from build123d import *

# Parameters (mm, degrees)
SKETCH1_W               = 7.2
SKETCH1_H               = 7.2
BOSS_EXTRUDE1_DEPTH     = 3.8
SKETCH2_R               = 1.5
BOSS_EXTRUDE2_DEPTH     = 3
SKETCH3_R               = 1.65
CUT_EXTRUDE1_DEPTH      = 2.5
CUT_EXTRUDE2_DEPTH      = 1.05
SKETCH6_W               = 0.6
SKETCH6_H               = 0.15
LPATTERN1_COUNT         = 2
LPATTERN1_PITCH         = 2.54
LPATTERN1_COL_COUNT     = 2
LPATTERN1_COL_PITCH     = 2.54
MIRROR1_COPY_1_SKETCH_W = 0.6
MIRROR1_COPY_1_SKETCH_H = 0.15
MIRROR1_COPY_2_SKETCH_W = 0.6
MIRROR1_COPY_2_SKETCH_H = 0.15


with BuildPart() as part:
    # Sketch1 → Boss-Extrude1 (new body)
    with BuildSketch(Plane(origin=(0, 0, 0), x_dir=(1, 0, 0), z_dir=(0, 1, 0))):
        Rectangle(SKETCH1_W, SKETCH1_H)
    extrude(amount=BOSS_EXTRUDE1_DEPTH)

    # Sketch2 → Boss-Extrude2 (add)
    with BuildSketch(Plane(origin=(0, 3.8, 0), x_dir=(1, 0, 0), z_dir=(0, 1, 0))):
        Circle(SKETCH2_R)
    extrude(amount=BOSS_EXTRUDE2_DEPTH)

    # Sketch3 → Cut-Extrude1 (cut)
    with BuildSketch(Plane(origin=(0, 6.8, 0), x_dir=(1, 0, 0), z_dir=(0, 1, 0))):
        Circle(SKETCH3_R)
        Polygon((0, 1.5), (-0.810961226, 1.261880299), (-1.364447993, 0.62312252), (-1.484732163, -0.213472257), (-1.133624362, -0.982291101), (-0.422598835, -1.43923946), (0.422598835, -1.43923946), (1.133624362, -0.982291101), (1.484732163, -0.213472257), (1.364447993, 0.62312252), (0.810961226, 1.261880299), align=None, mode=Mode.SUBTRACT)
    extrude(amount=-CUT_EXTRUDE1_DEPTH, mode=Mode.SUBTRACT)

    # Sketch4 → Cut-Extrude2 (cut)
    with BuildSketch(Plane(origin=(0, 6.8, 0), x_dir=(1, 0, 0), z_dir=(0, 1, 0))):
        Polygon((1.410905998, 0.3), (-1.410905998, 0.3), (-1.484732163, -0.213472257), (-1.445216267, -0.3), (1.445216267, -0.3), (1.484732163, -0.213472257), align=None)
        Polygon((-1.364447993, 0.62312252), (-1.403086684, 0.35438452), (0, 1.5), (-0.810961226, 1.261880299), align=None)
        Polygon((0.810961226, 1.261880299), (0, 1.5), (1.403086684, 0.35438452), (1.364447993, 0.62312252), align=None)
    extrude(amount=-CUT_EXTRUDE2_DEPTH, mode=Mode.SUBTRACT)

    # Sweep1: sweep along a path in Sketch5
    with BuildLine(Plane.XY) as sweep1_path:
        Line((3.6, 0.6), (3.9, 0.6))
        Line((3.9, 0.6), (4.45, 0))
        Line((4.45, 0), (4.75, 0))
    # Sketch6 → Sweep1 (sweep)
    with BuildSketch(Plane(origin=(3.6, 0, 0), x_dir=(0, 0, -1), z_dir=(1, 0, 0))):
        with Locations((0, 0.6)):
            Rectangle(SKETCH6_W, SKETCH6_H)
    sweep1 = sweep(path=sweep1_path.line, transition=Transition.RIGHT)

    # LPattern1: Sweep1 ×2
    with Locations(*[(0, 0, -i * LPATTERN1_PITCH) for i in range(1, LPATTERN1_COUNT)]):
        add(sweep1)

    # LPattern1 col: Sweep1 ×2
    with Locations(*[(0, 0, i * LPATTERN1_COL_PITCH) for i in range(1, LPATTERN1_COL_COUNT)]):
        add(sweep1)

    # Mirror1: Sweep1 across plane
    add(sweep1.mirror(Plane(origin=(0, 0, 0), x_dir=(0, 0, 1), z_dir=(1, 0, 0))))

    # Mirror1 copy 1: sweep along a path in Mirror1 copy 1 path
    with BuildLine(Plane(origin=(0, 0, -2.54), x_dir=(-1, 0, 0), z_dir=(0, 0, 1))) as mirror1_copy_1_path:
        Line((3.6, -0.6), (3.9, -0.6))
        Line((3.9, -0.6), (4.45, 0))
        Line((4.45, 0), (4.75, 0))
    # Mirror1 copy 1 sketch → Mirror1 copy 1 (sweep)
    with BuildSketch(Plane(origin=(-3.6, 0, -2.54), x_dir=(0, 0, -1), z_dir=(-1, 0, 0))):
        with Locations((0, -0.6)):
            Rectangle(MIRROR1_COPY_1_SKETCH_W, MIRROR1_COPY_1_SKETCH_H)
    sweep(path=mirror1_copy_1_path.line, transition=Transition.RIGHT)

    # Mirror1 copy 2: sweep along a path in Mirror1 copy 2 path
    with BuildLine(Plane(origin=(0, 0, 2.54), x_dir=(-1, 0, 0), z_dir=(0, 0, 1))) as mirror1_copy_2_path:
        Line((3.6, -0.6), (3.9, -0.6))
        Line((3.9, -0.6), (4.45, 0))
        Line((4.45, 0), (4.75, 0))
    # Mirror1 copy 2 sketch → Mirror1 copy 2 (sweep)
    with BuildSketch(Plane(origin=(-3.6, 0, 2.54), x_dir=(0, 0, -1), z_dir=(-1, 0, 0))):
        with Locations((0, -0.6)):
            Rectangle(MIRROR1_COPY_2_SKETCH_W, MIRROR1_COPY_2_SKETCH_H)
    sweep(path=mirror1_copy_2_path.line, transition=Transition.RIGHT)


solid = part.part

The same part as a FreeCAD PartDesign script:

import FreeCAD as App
import Part
import Sketcher
from FreeCAD import Vector
Q = App.Units.Quantity

doc = App.newDocument("Part")
body = doc.addObject("PartDesign::Body", "Body")

sketch1 = doc.addObject("Sketcher::SketchObject", "Sketch")
body.addObject(sketch1)
sketch1.AttachmentSupport = (doc.XZ_Plane, [""])
sketch1.MapMode = "FlatFace"
sketch1.addGeometry([
    Part.LineSegment(Vector(-3.6, -3.6, 0), Vector(-3.6, 3.6, 0)),
    Part.LineSegment(Vector(-3.6, 3.6, 0), Vector(3.6, 3.6, 0)),
    Part.LineSegment(Vector(3.6, 3.6, 0), Vector(3.6, -3.6, 0)),
    Part.LineSegment(Vector(3.6, -3.6, 0), Vector(-3.6, -3.6, 0)),
], False)
sketch1.addConstraint([
    Sketcher.Constraint("Coincident", 0, 2, 1, 1),
    Sketcher.Constraint("Coincident", 1, 2, 2, 1),
    Sketcher.Constraint("Coincident", 2, 2, 3, 1),
    Sketcher.Constraint("Coincident", 3, 2, 0, 1),
    Sketcher.Constraint("Vertical", 0),
    Sketcher.Constraint("Horizontal", 1),
    Sketcher.Constraint("Vertical", 2),
    Sketcher.Constraint("Horizontal", 3),
    Sketcher.Constraint("Symmetric", 0, 2, 2, 2, -1, 1),
    Sketcher.Constraint("Equal", 3, 0),
    Sketcher.Constraint("DistanceX", 1, 1, 1, 2, Q("7.2 mm")),
])
pad1 = doc.addObject("PartDesign::Pad", "Pad")
body.addObject(pad1)
pad1.Profile = sketch1
pad1.Length = 3.8
pad1.Reversed = True

sketch2 = doc.addObject("Sketcher::SketchObject", "Sketch001")
body.addObject(sketch2)
sketch2.AttachmentSupport = (doc.XZ_Plane, [""])
sketch2.MapMode = "FlatFace"
sketch2.AttachmentOffset = App.Placement(Vector(0, 0, -3.8), App.Rotation())
sketch2.addGeometry(Part.Circle(Vector(0, 0, 0), Vector(0, 0, 1), 1.5), False)
sketch2.addConstraint([
    Sketcher.Constraint("Coincident", 0, 3, -1, 1),
    Sketcher.Constraint("Diameter", 0, Q("3 mm")),
])
pad2 = doc.addObject("PartDesign::Pad", "Pad001")
body.addObject(pad2)
pad2.Profile = sketch2
pad2.Length = 3
pad2.Reversed = True

sketch3 = doc.addObject("Sketcher::SketchObject", "Sketch002")
body.addObject(sketch3)
sketch3.AttachmentSupport = (doc.XZ_Plane, [""])
sketch3.MapMode = "FlatFace"
sketch3.AttachmentOffset = App.Placement(Vector(0, 0, -6.8), App.Rotation())
sketch3.addGeometry([
    Part.Circle(Vector(0, 0, 0), Vector(0, 0, 1), 1.65),
    Part.LineSegment(Vector(-0.810961, -1.26188, 0), Vector(0, -1.5, 0)),
    Part.LineSegment(Vector(0, -1.5, 0), Vector(0.810961, -1.26188, 0)),
    Part.LineSegment(Vector(0.810961, -1.26188, 0), Vector(1.364448, -0.623123, 0)),
    Part.LineSegment(Vector(1.364448, -0.623123, 0), Vector(1.484732, 0.213472, 0)),
    Part.LineSegment(Vector(1.484732, 0.213472, 0), Vector(1.133624, 0.982291, 0)),
    Part.LineSegment(Vector(1.133624, 0.982291, 0), Vector(0.422599, 1.439239, 0)),
    Part.LineSegment(Vector(0.422599, 1.439239, 0), Vector(-0.422599, 1.439239, 0)),
    Part.LineSegment(Vector(-0.422599, 1.439239, 0), Vector(-1.133624, 0.982291, 0)),
    Part.LineSegment(Vector(-1.133624, 0.982291, 0), Vector(-1.484732, 0.213472, 0)),
    Part.LineSegment(Vector(-1.484732, 0.213472, 0), Vector(-1.364448, -0.623123, 0)),
    Part.LineSegment(Vector(-1.364448, -0.623123, 0), Vector(-0.810961, -1.26188, 0)),
], False)
sketch3.addConstraint([
    Sketcher.Constraint("Coincident", 1, 2, 2, 1),
    Sketcher.Constraint("Coincident", 2, 2, 3, 1),
    Sketcher.Constraint("Coincident", 3, 2, 4, 1),
    Sketcher.Constraint("Coincident", 4, 2, 5, 1),
    Sketcher.Constraint("Coincident", 5, 2, 6, 1),
    Sketcher.Constraint("Coincident", 6, 2, 7, 1),
    Sketcher.Constraint("Coincident", 7, 2, 8, 1),
    Sketcher.Constraint("Coincident", 8, 2, 9, 1),
    Sketcher.Constraint("Coincident", 9, 2, 10, 1),
    Sketcher.Constraint("Coincident", 10, 2, 11, 1),
    Sketcher.Constraint("Coincident", 11, 2, 1, 1),
    Sketcher.Constraint("Horizontal", 7),
    Sketcher.Constraint("Coincident", 0, 3, -1, 1),
    Sketcher.Constraint("Symmetric", 5, 2, 8, 2, -2),
    Sketcher.Constraint("Symmetric", 4, 2, 9, 2, -2),
    Sketcher.Constraint("Symmetric", 3, 2, 10, 2, -2),
    Sketcher.Constraint("Symmetric", 2, 2, 11, 2, -2),
    Sketcher.Constraint("PointOnObject", 1, 2, -2),
    Sketcher.Constraint("Equal", 2, 3),
    Sketcher.Constraint("Equal", 3, 4),
    Sketcher.Constraint("Equal", 4, 5),
    Sketcher.Constraint("Equal", 5, 6),
    Sketcher.Constraint("Equal", 6, 8),
    Sketcher.Constraint("Diameter", 0, Q("3.3 mm")),
    Sketcher.Constraint("DistanceY", 1, 2, -1, 1, Q("1.5 mm")),
    Sketcher.Constraint("DistanceX", -1, 1, 6, 2, Q("0.422599 mm")),
    Sketcher.Constraint("DistanceX", -1, 1, 2, 2, Q("0.810961 mm")),
    Sketcher.Constraint("DistanceY", 2, 2, -1, 1, Q("1.26188 mm")),
    Sketcher.Constraint("DistanceY", -1, 1, 5, 2, Q("0.982291 mm")),
    Sketcher.Constraint("DistanceY", -1, 1, 6, 2, Q("1.439239 mm")),
    Sketcher.Constraint("DistanceX", 2, 2, 4, 2, Q("0.673771 mm")),
])
pocket1 = doc.addObject("PartDesign::Pocket", "Pocket")
body.addObject(pocket1)
pocket1.Profile = sketch3
pocket1.Length = 2.5
pocket1.Reversed = True

sketch4 = doc.addObject("Sketcher::SketchObject", "Sketch003")
body.addObject(sketch4)
sketch4.AttachmentSupport = (doc.XZ_Plane, [""])
sketch4.MapMode = "FlatFace"
sketch4.AttachmentOffset = App.Placement(Vector(0, 0, -6.8), App.Rotation())
sketch4.addGeometry([
    Part.LineSegment(Vector(1.410906, -0.3, 0), Vector(-1.410906, -0.3, 0)),
    Part.LineSegment(Vector(-1.410906, -0.3, 0), Vector(-1.484732, 0.213472, 0)),
    Part.LineSegment(Vector(-1.484732, 0.213472, 0), Vector(-1.445216, 0.3, 0)),
    Part.LineSegment(Vector(-1.445216, 0.3, 0), Vector(1.445216, 0.3, 0)),
    Part.LineSegment(Vector(1.445216, 0.3, 0), Vector(1.484732, 0.213472, 0)),
    Part.LineSegment(Vector(1.484732, 0.213472, 0), Vector(1.410906, -0.3, 0)),
    Part.LineSegment(Vector(-1.364448, -0.623123, 0), Vector(-1.403087, -0.354385, 0)),
    Part.LineSegment(Vector(-1.403087, -0.354385, 0), Vector(0, -1.5, 0)),
    Part.LineSegment(Vector(0, -1.5, 0), Vector(-0.810961, -1.26188, 0)),
    Part.LineSegment(Vector(-0.810961, -1.26188, 0), Vector(-1.364448, -0.623123, 0)),
    Part.LineSegment(Vector(0.810961, -1.26188, 0), Vector(0, -1.5, 0)),
    Part.LineSegment(Vector(0, -1.5, 0), Vector(1.403087, -0.354385, 0)),
    Part.LineSegment(Vector(1.403087, -0.354385, 0), Vector(1.364448, -0.623123, 0)),
    Part.LineSegment(Vector(1.364448, -0.623123, 0), Vector(0.810961, -1.26188, 0)),
], False)
sketch4.addConstraint([
    Sketcher.Constraint("Coincident", 0, 2, 1, 1),
    Sketcher.Constraint("Coincident", 1, 2, 2, 1),
    Sketcher.Constraint("Coincident", 2, 2, 3, 1),
    Sketcher.Constraint("Coincident", 3, 2, 4, 1),
    Sketcher.Constraint("Coincident", 4, 2, 5, 1),
    Sketcher.Constraint("Coincident", 5, 2, 0, 1),
    Sketcher.Constraint("Coincident", 6, 2, 7, 1),
    Sketcher.Constraint("Coincident", 7, 2, 8, 1),
    Sketcher.Constraint("Coincident", 8, 2, 9, 1),
    Sketcher.Constraint("Coincident", 9, 2, 6, 1),
    Sketcher.Constraint("Coincident", 10, 2, 11, 1),
    Sketcher.Constraint("Coincident", 11, 2, 12, 1),
    Sketcher.Constraint("Coincident", 12, 2, 13, 1),
    Sketcher.Constraint("Coincident", 13, 2, 10, 1),
    Sketcher.Constraint("Horizontal", 0),
    Sketcher.Constraint("Horizontal", 3),
    Sketcher.Constraint("Coincident", 10, 2, 7, 2),
    Sketcher.Constraint("Symmetric", 1, 2, 4, 2, -2),
    Sketcher.Constraint("Symmetric", 6, 2, 11, 2, -2),
    Sketcher.Constraint("Symmetric", 9, 2, 12, 2, -2),
    Sketcher.Constraint("Symmetric", 8, 2, 13, 2, -2),
    Sketcher.Constraint("PointOnObject", 7, 2, -2),
    Sketcher.Constraint("Parallel", 1, 6),
    Sketcher.Constraint("Parallel", 5, 12),
    Sketcher.Constraint("Equal", 2, 4),
    Sketcher.Constraint("Equal", 8, 9),
    Sketcher.Constraint("DistanceY", 0, 2, -1, 1, Q("0.3 mm")),
    Sketcher.Constraint("DistanceY", -1, 1, 2, 2, Q("0.3 mm")),
    Sketcher.Constraint("DistanceY", 7, 2, -1, 1, Q("1.5 mm")),
    Sketcher.Constraint("Distance", 6, Q("0.271501 mm")),
    Sketcher.Constraint("DistanceX", 0, 2, 0, 1, Q("2.821812 mm")),
    Sketcher.Constraint("DistanceX", 3, 1, 3, 2, Q("2.890433 mm")),
    Sketcher.Constraint("DistanceX", 8, 2, -1, 1, Q("0.810961 mm")),
    Sketcher.Constraint("DistanceY", 8, 2, -1, 1, Q("1.26188 mm")),
    Sketcher.Constraint("DistanceX", 1, 2, 3, 2, Q("2.929948 mm")),
    Sketcher.Constraint("DistanceX", 0, 2, 6, 2, Q("0.007819 mm")),
    Sketcher.Constraint("DistanceX", 6, 2, 9, 2, Q("0.038639 mm")),
])
pocket2 = doc.addObject("PartDesign::Pocket", "Pocket001")
body.addObject(pocket2)
pocket2.Profile = sketch4
pocket2.Length = 1.05
pocket2.Reversed = True

sketch5 = doc.addObject("Sketcher::SketchObject", "Sketch004")
body.addObject(sketch5)
sketch5.AttachmentSupport = (doc.YZ_Plane, [""])
sketch5.MapMode = "FlatFace"
sketch5.AttachmentOffset = App.Placement(Vector(0, 0, 3.6), App.Rotation())
sketch5.addGeometry([
    Part.LineSegment(Vector(0.675, 0.3, 0), Vector(0.525, 0.3, 0)),
    Part.LineSegment(Vector(0.525, 0.3, 0), Vector(0.525, -0.3, 0)),
    Part.LineSegment(Vector(0.525, -0.3, 0), Vector(0.675, -0.3, 0)),
    Part.LineSegment(Vector(0.675, -0.3, 0), Vector(0.675, 0.3, 0)),
], False)
sketch5.addConstraint([
    Sketcher.Constraint("Coincident", 0, 2, 1, 1),
    Sketcher.Constraint("Coincident", 1, 2, 2, 1),
    Sketcher.Constraint("Coincident", 2, 2, 3, 1),
    Sketcher.Constraint("Coincident", 3, 2, 0, 1),
    Sketcher.Constraint("Horizontal", 0),
    Sketcher.Constraint("Vertical", 1),
    Sketcher.Constraint("Horizontal", 2),
    Sketcher.Constraint("Vertical", 3),
    Sketcher.Constraint("DistanceY", 1, 2, 1, 1, Q("0.6 mm")),
    Sketcher.Constraint("DistanceX", 0, 2, 0, 1, Q("0.15 mm")),
    Sketcher.Constraint("DistanceY", -1, 1, 0, 2, Q("0.3 mm")),
    Sketcher.Constraint("DistanceX", -1, 1, 0, 2, Q("0.525 mm")),
])

sketch6 = doc.addObject("Sketcher::SketchObject", "Sketch005")
body.addObject(sketch6)
sketch6.AttachmentSupport = (doc.XY_Plane, [""])
sketch6.MapMode = "FlatFace"
sketch6.addGeometry([
    Part.LineSegment(Vector(3.6, 0.6, 0), Vector(3.9, 0.6, 0)),
    Part.LineSegment(Vector(3.9, 0.6, 0), Vector(4.45, 0, 0)),
    Part.LineSegment(Vector(4.45, 0, 0), Vector(4.75, 0, 0)),
], False)
sketch6.addConstraint([
    Sketcher.Constraint("Coincident", 0, 2, 1, 1),
    Sketcher.Constraint("Coincident", 1, 2, 2, 1),
    Sketcher.Constraint("Horizontal", 0),
    Sketcher.Constraint("Horizontal", 2),
    Sketcher.Constraint("PointOnObject", 1, 2, -1),
    Sketcher.Constraint("Equal", 0, 2),
    Sketcher.Constraint("DistanceX", 0, 1, 0, 2, Q("0.3 mm")),
    Sketcher.Constraint("DistanceX", -1, 1, 0, 1, Q("3.6 mm")),
    Sketcher.Constraint("DistanceY", -1, 1, 0, 1, Q("0.6 mm")),
    Sketcher.Constraint("DistanceX", -1, 1, 1, 2, Q("4.45 mm")),
])
doc.recompute()

additivepipe = doc.addObject("PartDesign::AdditivePipe", "AdditivePipe")
body.addObject(additivepipe)
additivepipe.Profile = sketch5
additivepipe.Spine = (sketch6, ["Edge1", "Edge2", "Edge3"])
additivepipe.Transition = "Right corner"
doc.recompute()

linearpattern = doc.addObject("PartDesign::LinearPattern", "LinearPattern")
body.addObject(linearpattern)
linearpattern.Originals = [additivepipe]
linearpattern.Direction = (doc.Z_Axis, [""])
linearpattern.Mode = "offset"
linearpattern.Offset = 2.54
linearpattern.Occurrences = 2
linearpattern.Reversed = True
body.Tip = linearpattern
doc.recompute()

linearpattern2 = doc.addObject("PartDesign::LinearPattern", "LinearPattern001")
body.addObject(linearpattern2)
linearpattern2.Originals = [additivepipe]
linearpattern2.Direction = (doc.Z_Axis, [""])
linearpattern2.Mode = "offset"
linearpattern2.Offset = 2.54
linearpattern2.Occurrences = 2
body.Tip = linearpattern2
doc.recompute()

mirrored = doc.addObject("PartDesign::Mirrored", "Mirrored")
body.addObject(mirrored)
mirrored.Originals = [additivepipe]
mirrored.MirrorPlane = (doc.YZ_Plane, [""])
body.Tip = mirrored

sketch7 = doc.addObject("Sketcher::SketchObject", "Sketch006")
body.addObject(sketch7)
sketch7.AttachmentSupport = (doc.YZ_Plane, [""])
sketch7.MapMode = "FlatFace"
sketch7.AttachmentOffset = App.Placement(Vector(0, 0, -3.6), App.Rotation())
sketch7.addGeometry([
    Part.LineSegment(Vector(0.525, -2.24, 0), Vector(0.675, -2.24, 0)),
    Part.LineSegment(Vector(0.675, -2.24, 0), Vector(0.675, -2.84, 0)),
    Part.LineSegment(Vector(0.675, -2.84, 0), Vector(0.525, -2.84, 0)),
    Part.LineSegment(Vector(0.525, -2.84, 0), Vector(0.525, -2.24, 0)),
], False)
sketch7.addConstraint([
    Sketcher.Constraint("Coincident", 0, 2, 1, 1),
    Sketcher.Constraint("Coincident", 1, 2, 2, 1),
    Sketcher.Constraint("Coincident", 2, 2, 3, 1),
    Sketcher.Constraint("Coincident", 3, 2, 0, 1),
    Sketcher.Constraint("Horizontal", 0),
    Sketcher.Constraint("Vertical", 1),
    Sketcher.Constraint("Horizontal", 2),
    Sketcher.Constraint("Vertical", 3),
    Sketcher.Constraint("DistanceY", 1, 2, 1, 1, Q("0.6 mm")),
    Sketcher.Constraint("DistanceX", 0, 1, 0, 2, Q("0.15 mm")),
    Sketcher.Constraint("DistanceY", 0, 2, -1, 1, Q("2.24 mm")),
    Sketcher.Constraint("DistanceX", -1, 1, 0, 2, Q("0.675 mm")),
])

sketch8 = doc.addObject("Sketcher::SketchObject", "Sketch007")
body.addObject(sketch8)
sketch8.AttachmentSupport = (doc.XY_Plane, [""])
sketch8.MapMode = "FlatFace"
sketch8.AttachmentOffset = App.Placement(Vector(0, 0, -2.54), App.Rotation())
sketch8.addGeometry([
    Part.LineSegment(Vector(-3.6, 0.6, 0), Vector(-3.9, 0.6, 0)),
    Part.LineSegment(Vector(-3.9, 0.6, 0), Vector(-4.45, 0, 0)),
    Part.LineSegment(Vector(-4.45, 0, 0), Vector(-4.75, 0, 0)),
], False)
sketch8.addConstraint([
    Sketcher.Constraint("Coincident", 0, 2, 1, 1),
    Sketcher.Constraint("Coincident", 1, 2, 2, 1),
    Sketcher.Constraint("Horizontal", 0),
    Sketcher.Constraint("Horizontal", 2),
    Sketcher.Constraint("PointOnObject", 1, 2, -1),
    Sketcher.Constraint("Equal", 0, 2),
    Sketcher.Constraint("DistanceX", 0, 2, 0, 1, Q("0.3 mm")),
    Sketcher.Constraint("DistanceX", 0, 1, -1, 1, Q("3.6 mm")),
    Sketcher.Constraint("DistanceY", -1, 1, 0, 1, Q("0.6 mm")),
    Sketcher.Constraint("DistanceX", 1, 2, -1, 1, Q("4.45 mm")),
])
doc.recompute()

additivepipe2 = doc.addObject("PartDesign::AdditivePipe", "AdditivePipe001")
body.addObject(additivepipe2)
additivepipe2.Profile = sketch7
additivepipe2.Spine = (sketch8, ["Edge1", "Edge2", "Edge3"])
additivepipe2.Transition = "Right corner"

sketch9 = doc.addObject("Sketcher::SketchObject", "Sketch008")
body.addObject(sketch9)
sketch9.AttachmentSupport = (doc.YZ_Plane, [""])
sketch9.MapMode = "FlatFace"
sketch9.AttachmentOffset = App.Placement(Vector(0, 0, -3.6), App.Rotation())
sketch9.addGeometry([
    Part.LineSegment(Vector(0.525, 2.84, 0), Vector(0.675, 2.84, 0)),
    Part.LineSegment(Vector(0.675, 2.84, 0), Vector(0.675, 2.24, 0)),
    Part.LineSegment(Vector(0.675, 2.24, 0), Vector(0.525, 2.24, 0)),
    Part.LineSegment(Vector(0.525, 2.24, 0), Vector(0.525, 2.84, 0)),
], False)
sketch9.addConstraint([
    Sketcher.Constraint("Coincident", 0, 2, 1, 1),
    Sketcher.Constraint("Coincident", 1, 2, 2, 1),
    Sketcher.Constraint("Coincident", 2, 2, 3, 1),
    Sketcher.Constraint("Coincident", 3, 2, 0, 1),
    Sketcher.Constraint("Horizontal", 0),
    Sketcher.Constraint("Vertical", 1),
    Sketcher.Constraint("Horizontal", 2),
    Sketcher.Constraint("Vertical", 3),
    Sketcher.Constraint("DistanceY", 1, 2, 1, 1, Q("0.6 mm")),
    Sketcher.Constraint("DistanceX", 0, 1, 0, 2, Q("0.15 mm")),
    Sketcher.Constraint("DistanceY", -1, 1, 0, 2, Q("2.84 mm")),
    Sketcher.Constraint("DistanceX", -1, 1, 0, 2, Q("0.675 mm")),
])

sketch10 = doc.addObject("Sketcher::SketchObject", "Sketch009")
body.addObject(sketch10)
sketch10.AttachmentSupport = (doc.XY_Plane, [""])
sketch10.MapMode = "FlatFace"
sketch10.AttachmentOffset = App.Placement(Vector(0, 0, 2.54), App.Rotation())
sketch10.addGeometry([
    Part.LineSegment(Vector(-3.6, 0.6, 0), Vector(-3.9, 0.6, 0)),
    Part.LineSegment(Vector(-3.9, 0.6, 0), Vector(-4.45, 0, 0)),
    Part.LineSegment(Vector(-4.45, 0, 0), Vector(-4.75, 0, 0)),
], False)
sketch10.addConstraint([
    Sketcher.Constraint("Coincident", 0, 2, 1, 1),
    Sketcher.Constraint("Coincident", 1, 2, 2, 1),
    Sketcher.Constraint("Horizontal", 0),
    Sketcher.Constraint("Horizontal", 2),
    Sketcher.Constraint("PointOnObject", 1, 2, -1),
    Sketcher.Constraint("Equal", 0, 2),
    Sketcher.Constraint("DistanceX", 0, 2, 0, 1, Q("0.3 mm")),
    Sketcher.Constraint("DistanceX", 0, 1, -1, 1, Q("3.6 mm")),
    Sketcher.Constraint("DistanceY", -1, 1, 0, 1, Q("0.6 mm")),
    Sketcher.Constraint("DistanceX", 1, 2, -1, 1, Q("4.45 mm")),
])
doc.recompute()

additivepipe3 = doc.addObject("PartDesign::AdditivePipe", "AdditivePipe002")
body.addObject(additivepipe3)
additivepipe3.Profile = sketch9
additivepipe3.Spine = (sketch10, ["Edge1", "Edge2", "Edge3"])
additivepipe3.Transition = "Right corner"

doc.recompute()
